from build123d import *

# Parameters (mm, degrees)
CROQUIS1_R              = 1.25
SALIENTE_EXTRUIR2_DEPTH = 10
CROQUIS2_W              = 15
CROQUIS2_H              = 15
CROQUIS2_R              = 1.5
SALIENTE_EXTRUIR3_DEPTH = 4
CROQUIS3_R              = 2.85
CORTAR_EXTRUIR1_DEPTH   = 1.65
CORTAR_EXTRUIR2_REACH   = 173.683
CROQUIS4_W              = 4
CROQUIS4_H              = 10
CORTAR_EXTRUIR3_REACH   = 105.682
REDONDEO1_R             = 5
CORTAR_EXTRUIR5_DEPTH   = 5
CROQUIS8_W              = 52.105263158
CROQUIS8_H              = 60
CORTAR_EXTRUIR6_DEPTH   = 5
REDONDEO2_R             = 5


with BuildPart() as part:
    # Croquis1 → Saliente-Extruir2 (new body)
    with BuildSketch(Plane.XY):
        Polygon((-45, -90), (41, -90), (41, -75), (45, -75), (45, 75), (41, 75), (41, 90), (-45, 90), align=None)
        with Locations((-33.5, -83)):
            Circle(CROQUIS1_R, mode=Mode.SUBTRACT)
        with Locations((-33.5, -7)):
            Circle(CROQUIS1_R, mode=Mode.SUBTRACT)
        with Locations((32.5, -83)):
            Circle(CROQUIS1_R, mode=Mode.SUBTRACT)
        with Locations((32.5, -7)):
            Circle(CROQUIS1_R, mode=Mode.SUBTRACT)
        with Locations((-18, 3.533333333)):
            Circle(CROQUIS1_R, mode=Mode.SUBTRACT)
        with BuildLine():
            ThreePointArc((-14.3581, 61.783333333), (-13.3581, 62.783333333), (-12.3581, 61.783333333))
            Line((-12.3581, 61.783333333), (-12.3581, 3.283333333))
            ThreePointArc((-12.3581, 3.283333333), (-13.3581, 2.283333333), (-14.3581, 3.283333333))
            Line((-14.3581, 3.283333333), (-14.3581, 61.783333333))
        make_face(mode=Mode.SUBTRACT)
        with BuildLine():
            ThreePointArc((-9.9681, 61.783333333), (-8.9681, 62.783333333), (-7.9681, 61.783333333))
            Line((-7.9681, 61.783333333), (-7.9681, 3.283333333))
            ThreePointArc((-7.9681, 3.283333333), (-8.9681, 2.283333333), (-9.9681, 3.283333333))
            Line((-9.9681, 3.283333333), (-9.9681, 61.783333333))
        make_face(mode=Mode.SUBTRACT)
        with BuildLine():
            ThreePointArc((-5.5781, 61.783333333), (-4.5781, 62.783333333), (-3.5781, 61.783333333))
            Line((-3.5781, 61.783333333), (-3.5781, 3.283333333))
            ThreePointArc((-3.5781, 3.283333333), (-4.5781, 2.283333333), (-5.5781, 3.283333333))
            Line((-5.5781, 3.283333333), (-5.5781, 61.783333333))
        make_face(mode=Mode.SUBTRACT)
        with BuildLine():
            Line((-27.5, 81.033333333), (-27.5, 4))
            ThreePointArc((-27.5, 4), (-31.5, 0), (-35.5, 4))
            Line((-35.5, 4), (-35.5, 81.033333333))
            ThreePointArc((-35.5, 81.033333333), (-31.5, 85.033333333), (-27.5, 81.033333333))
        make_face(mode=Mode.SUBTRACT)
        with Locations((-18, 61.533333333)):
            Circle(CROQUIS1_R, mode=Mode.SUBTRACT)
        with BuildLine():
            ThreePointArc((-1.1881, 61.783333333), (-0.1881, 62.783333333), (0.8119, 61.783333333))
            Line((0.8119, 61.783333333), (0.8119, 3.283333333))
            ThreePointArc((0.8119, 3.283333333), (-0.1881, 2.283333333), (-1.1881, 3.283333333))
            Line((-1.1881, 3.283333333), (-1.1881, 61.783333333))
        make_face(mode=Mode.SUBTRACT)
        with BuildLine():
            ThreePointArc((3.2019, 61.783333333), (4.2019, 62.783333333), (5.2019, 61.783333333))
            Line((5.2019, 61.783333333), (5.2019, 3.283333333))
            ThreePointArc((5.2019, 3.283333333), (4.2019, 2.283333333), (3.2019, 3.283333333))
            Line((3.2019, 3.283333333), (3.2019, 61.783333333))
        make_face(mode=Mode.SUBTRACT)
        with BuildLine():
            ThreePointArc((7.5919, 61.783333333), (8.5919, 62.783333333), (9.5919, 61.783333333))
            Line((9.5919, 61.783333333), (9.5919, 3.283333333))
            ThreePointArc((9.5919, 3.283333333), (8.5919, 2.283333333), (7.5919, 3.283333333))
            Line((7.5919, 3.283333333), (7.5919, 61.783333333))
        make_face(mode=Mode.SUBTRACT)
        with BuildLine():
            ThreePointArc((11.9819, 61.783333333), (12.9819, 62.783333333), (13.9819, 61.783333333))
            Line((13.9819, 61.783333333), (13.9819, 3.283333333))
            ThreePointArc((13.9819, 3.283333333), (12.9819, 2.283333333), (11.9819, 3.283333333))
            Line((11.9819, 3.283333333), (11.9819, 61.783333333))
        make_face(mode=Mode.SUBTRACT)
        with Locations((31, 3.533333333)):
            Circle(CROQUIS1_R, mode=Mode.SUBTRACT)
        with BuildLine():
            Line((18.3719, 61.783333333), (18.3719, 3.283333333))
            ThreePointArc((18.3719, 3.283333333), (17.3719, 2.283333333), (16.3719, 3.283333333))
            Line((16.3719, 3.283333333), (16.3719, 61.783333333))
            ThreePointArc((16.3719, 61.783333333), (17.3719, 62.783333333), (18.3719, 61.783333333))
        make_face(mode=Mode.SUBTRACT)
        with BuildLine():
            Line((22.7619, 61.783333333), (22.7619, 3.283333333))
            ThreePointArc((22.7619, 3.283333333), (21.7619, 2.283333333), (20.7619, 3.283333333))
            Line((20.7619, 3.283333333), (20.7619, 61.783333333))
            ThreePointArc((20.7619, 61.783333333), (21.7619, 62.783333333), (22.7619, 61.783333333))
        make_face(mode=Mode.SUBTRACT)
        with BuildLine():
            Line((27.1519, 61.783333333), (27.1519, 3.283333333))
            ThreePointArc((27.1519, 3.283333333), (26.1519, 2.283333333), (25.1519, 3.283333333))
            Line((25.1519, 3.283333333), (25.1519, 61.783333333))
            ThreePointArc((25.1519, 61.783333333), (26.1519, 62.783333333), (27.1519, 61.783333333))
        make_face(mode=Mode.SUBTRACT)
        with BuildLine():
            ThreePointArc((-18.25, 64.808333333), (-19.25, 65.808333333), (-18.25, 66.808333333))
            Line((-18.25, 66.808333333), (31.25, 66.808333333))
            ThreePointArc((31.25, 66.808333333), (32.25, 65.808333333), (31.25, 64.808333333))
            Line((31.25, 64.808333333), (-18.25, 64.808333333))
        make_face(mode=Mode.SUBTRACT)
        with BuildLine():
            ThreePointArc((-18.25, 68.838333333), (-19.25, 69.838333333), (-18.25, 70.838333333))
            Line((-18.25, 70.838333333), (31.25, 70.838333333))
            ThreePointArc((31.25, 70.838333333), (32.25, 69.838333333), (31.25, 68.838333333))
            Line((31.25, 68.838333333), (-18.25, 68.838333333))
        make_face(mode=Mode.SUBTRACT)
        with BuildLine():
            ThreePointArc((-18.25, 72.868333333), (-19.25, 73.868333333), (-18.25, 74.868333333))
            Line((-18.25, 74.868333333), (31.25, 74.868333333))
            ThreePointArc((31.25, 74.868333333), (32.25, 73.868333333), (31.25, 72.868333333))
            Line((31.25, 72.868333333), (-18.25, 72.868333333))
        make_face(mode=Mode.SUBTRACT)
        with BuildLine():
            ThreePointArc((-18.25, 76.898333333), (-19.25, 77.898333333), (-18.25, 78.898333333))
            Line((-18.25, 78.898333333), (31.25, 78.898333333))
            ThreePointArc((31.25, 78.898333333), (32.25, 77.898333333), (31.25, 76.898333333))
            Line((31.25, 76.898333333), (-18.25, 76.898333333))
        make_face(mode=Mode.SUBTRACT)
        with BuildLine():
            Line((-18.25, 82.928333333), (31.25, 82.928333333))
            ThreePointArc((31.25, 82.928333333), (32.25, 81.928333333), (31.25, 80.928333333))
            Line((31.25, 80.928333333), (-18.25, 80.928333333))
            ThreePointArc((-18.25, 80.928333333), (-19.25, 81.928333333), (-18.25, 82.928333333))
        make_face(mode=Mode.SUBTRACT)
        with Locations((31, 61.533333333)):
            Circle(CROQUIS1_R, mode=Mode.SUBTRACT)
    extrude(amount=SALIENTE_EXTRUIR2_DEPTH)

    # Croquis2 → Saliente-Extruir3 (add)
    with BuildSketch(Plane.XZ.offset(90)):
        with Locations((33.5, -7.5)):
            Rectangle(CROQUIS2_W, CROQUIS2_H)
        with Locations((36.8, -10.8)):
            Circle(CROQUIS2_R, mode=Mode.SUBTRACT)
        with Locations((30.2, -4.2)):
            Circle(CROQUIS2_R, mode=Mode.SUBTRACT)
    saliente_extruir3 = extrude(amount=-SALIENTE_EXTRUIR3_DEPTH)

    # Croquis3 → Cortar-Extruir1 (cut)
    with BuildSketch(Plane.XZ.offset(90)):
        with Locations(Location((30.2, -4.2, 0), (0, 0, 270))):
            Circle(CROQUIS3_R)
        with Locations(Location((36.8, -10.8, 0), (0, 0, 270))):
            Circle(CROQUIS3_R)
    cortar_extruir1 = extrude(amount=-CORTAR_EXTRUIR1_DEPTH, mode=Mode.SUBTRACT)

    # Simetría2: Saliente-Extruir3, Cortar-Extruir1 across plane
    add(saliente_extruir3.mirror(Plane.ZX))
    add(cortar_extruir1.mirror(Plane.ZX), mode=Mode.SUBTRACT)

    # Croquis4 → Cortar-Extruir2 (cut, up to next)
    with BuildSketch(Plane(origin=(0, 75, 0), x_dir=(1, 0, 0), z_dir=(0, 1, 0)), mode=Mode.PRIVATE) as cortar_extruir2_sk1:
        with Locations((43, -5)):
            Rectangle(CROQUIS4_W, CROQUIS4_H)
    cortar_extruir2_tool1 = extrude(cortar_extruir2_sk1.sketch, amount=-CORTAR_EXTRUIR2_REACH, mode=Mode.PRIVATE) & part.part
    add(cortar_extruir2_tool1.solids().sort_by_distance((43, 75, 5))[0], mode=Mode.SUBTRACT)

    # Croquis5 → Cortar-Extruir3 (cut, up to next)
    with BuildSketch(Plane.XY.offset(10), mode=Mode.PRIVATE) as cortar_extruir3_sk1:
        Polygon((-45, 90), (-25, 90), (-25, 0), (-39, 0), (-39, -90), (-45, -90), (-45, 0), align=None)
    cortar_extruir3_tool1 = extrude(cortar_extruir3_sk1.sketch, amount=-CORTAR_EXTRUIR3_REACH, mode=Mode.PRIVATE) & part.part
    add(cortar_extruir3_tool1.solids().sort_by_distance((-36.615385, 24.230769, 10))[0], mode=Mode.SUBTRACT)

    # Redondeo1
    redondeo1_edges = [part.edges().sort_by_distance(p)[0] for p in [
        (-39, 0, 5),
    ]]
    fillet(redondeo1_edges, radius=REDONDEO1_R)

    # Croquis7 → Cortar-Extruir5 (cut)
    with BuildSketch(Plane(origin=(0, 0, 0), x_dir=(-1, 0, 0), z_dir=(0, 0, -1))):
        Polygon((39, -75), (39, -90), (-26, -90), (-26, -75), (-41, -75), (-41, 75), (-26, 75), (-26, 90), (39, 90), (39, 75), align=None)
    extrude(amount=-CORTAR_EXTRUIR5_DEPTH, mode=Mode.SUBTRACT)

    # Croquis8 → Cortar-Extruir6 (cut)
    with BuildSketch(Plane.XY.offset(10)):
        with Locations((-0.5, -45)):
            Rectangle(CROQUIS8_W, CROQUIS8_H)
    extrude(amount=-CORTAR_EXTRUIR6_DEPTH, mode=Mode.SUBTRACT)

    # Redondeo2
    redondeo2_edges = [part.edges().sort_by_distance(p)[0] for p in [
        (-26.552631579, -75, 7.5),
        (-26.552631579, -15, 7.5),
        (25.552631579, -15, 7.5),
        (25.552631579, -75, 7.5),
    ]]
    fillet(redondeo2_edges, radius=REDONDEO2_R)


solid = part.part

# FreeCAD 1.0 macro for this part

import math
import FreeCAD as App
import Part
import Sketcher
from FreeCAD import Vector
Q = App.Units.Quantity


def edges_at(feature, points):
    """Names of the edges that pass closest to the given points."""
    edges = feature.Shape.Edges
    near = lambda p: min(range(len(edges)), key=lambda i: edges[i].distToShape(Part.Vertex(*p))[0])
    return sorted({f"Edge{near(p) + 1}" for p in points})

doc = App.newDocument("Part")
body = doc.addObject("PartDesign::Body", "Body")

# Sketch on XY plane
sketch1 = doc.addObject("Sketcher::SketchObject", "Sketch")
body.addObject(sketch1)
sketch1.AttachmentSupport = (doc.XY_Plane, [""])
sketch1.MapMode = "FlatFace"
sketch1.addGeometry(Part.LineSegment(Vector(-45, -90, 0), Vector(41, -90, 0)), False)
sketch1.addGeometry(Part.LineSegment(Vector(41, -90, 0), Vector(41, -75, 0)), False)
sketch1.addGeometry(Part.LineSegment(Vector(41, -75, 0), Vector(45, -75, 0)), False)
sketch1.addGeometry(Part.LineSegment(Vector(45, -75, 0), Vector(45, 75, 0)), False)
sketch1.addGeometry(Part.LineSegment(Vector(45, 75, 0), Vector(41, 75, 0)), False)
sketch1.addGeometry(Part.LineSegment(Vector(41, 75, 0), Vector(41, 90, 0)), False)
sketch1.addGeometry(Part.LineSegment(Vector(41, 90, 0), Vector(-45, 90, 0)), False)
sketch1.addGeometry(Part.LineSegment(Vector(-45, 90, 0), Vector(-45, -90, 0)), False)
sketch1.addGeometry(Part.Circle(Vector(-33.5, -83, 0), Vector(0, 0, 1), 1.2), False)
sketch1.addGeometry(Part.Circle(Vector(-33.5, -7, 0), Vector(0, 0, 1), 1.2), False)
sketch1.addGeometry(Part.Circle(Vector(32.5, -83, 0), Vector(0, 0, 1), 1.2), False)
sketch1.addGeometry(Part.Circle(Vector(32.5, -7, 0), Vector(0, 0, 1), 1.2), False)
sketch1.addGeometry(Part.ArcOfCircle(Part.Circle(Vector(-31.5, 81, 0), Vector(0, 0, 1), 4), math.radians(0), math.radians(180)), False)
sketch1.addGeometry(Part.LineSegment(Vector(-27.5, 81, 0), Vector(-27.5, 4, 0)), False)
sketch1.addGeometry(Part.ArcOfCircle(Part.Circle(Vector(-31.5, 4, 0), Vector(0, 0, 1), 4), math.radians(180), math.radians(360)), False)
sketch1.addGeometry(Part.LineSegment(Vector(-35.5, 4, 0), Vector(-35.5, 81, 0)), False)
sketch1.addGeometry(Part.Circle(Vector(-18, 3.5, 0), Vector(0, 0, 1), 1.2), False)
sketch1.addGeometry(Part.LineSegment(Vector(-14.4, 3.3, 0), Vector(-14.4, 61.8, 0)), False)
sketch1.addGeometry(Part.ArcOfCircle(Part.Circle(Vector(-13.4, 61.8, 0), Vector(0, 0, 1), 1), math.radians(0), math.radians(180)), False)
sketch1.addGeometry(Part.LineSegment(Vector(-12.4, 61.8, 0), Vector(-12.4, 3.3, 0)), False)
sketch1.addGeometry(Part.ArcOfCircle(Part.Circle(Vector(-13.4, 3.3, 0), Vector(0, 0, 1), 1), math.radians(180), math.radians(360)), False)
sketch1.addGeometry(Part.LineSegment(Vector(-10, 3.3, 0), Vector(-10, 61.8, 0)), False)
sketch1.addGeometry(Part.ArcOfCircle(Part.Circle(Vector(-9, 61.8, 0), Vector(0, 0, 1), 1), math.radians(0), math.radians(180)), False)
sketch1.addGeometry(Part.LineSegment(Vector(-8, 61.8, 0), Vector(-8, 3.3, 0)), False)
sketch1.addGeometry(Part.ArcOfCircle(Part.Circle(Vector(-9, 3.3, 0), Vector(0, 0, 1), 1), math.radians(180), math.radians(360)), False)
sketch1.addGeometry(Part.LineSegment(Vector(-5.6, 3.3, 0), Vector(-5.6, 61.8, 0)), False)
sketch1.addGeometry(Part.ArcOfCircle(Part.Circle(Vector(-4.6, 61.8, 0), Vector(0, 0, 1), 1), math.radians(0), math.radians(180)), False)
sketch1.addGeometry(Part.LineSegment(Vector(-3.6, 61.8, 0), Vector(-3.6, 3.3, 0)), False)
sketch1.addGeometry(Part.ArcOfCircle(Part.Circle(Vector(-4.6, 3.3, 0), Vector(0, 0, 1), 1), math.radians(180), math.radians(360)), False)
sketch1.addGeometry(Part.Circle(Vector(-18, 61.5, 0), Vector(0, 0, 1), 1.2), False)
sketch1.addGeometry(Part.LineSegment(Vector(-1.2, 3.3, 0), Vector(-1.2, 61.8, 0)), False)
sketch1.addGeometry(Part.ArcOfCircle(Part.Circle(Vector(-0.2, 61.8, 0), Vector(0, 0, 1), 1), math.radians(0), math.radians(180)), False)
sketch1.addGeometry(Part.LineSegment(Vector(0.8, 61.8, 0), Vector(0.8, 3.3, 0)), False)
sketch1.addGeometry(Part.ArcOfCircle(Part.Circle(Vector(-0.2, 3.3, 0), Vector(0, 0, 1), 1), math.radians(180), math.radians(360)), False)
sketch1.addGeometry(Part.LineSegment(Vector(3.2, 3.3, 0), Vector(3.2, 61.8, 0)), False)
sketch1.addGeometry(Part.ArcOfCircle(Part.Circle(Vector(4.2, 61.8, 0), Vector(0, 0, 1), 1), math.radians(0), math.radians(180)), False)
sketch1.addGeometry(Part.LineSegment(Vector(5.2, 61.8, 0), Vector(5.2, 3.3, 0)), False)
sketch1.addGeometry(Part.ArcOfCircle(Part.Circle(Vector(4.2, 3.3, 0), Vector(0, 0, 1), 1), math.radians(180), math.radians(360)), False)
sketch1.addGeometry(Part.LineSegment(Vector(7.6, 3.3, 0), Vector(7.6, 61.8, 0)), False)
sketch1.addGeometry(Part.ArcOfCircle(Part.Circle(Vector(8.6, 61.8, 0), Vector(0, 0, 1), 1), math.radians(0), math.radians(180)), False)
sketch1.addGeometry(Part.LineSegment(Vector(9.6, 61.8, 0), Vector(9.6, 3.3, 0)), False)
sketch1.addGeometry(Part.ArcOfCircle(Part.Circle(Vector(8.6, 3.3, 0), Vector(0, 0, 1), 1), math.radians(180), math.radians(360)), False)
sketch1.addGeometry(Part.LineSegment(Vector(12, 3.3, 0), Vector(12, 61.8, 0)), False)
sketch1.addGeometry(Part.ArcOfCircle(Part.Circle(Vector(13, 61.8, 0), Vector(0, 0, 1), 1), math.radians(0), math.radians(180)), False)
sketch1.addGeometry(Part.LineSegment(Vector(14, 61.8, 0), Vector(14, 3.3, 0)), False)
sketch1.addGeometry(Part.ArcOfCircle(Part.Circle(Vector(13, 3.3, 0), Vector(0, 0, 1), 1), math.radians(180), math.radians(360)), False)
sketch1.addGeometry(Part.Circle(Vector(31, 3.5, 0), Vector(0, 0, 1), 1.2), False)
sketch1.addGeometry(Part.ArcOfCircle(Part.Circle(Vector(17.4, 61.8, 0), Vector(0, 0, 1), 1), math.radians(0), math.radians(180)), False)
sketch1.addGeometry(Part.LineSegment(Vector(18.4, 61.8, 0), Vector(18.4, 3.3, 0)), False)
sketch1.addGeometry(Part.ArcOfCircle(Part.Circle(Vector(17.4, 3.3, 0), Vector(0, 0, 1), 1), math.radians(180), math.radians(360)), False)
sketch1.addGeometry(Part.LineSegment(Vector(16.4, 3.3, 0), Vector(16.4, 61.8, 0)), False)
sketch1.addGeometry(Part.ArcOfCircle(Part.Circle(Vector(21.8, 61.8, 0), Vector(0, 0, 1), 1), math.radians(0), math.radians(180)), False)
sketch1.addGeometry(Part.LineSegment(Vector(22.8, 61.8, 0), Vector(22.8, 3.3, 0)), False)
sketch1.addGeometry(Part.ArcOfCircle(Part.Circle(Vector(21.8, 3.3, 0), Vector(0, 0, 1), 1), math.radians(180), math.radians(360)), False)
sketch1.addGeometry(Part.LineSegment(Vector(20.8, 3.3, 0), Vector(20.8, 61.8, 0)), False)
sketch1.addGeometry(Part.ArcOfCircle(Part.Circle(Vector(26.2, 61.8, 0), Vector(0, 0, 1), 1), math.radians(0), math.radians(180)), False)
sketch1.addGeometry(Part.LineSegment(Vector(27.2, 61.8, 0), Vector(27.2, 3.3, 0)), False)
sketch1.addGeometry(Part.ArcOfCircle(Part.Circle(Vector(26.2, 3.3, 0), Vector(0, 0, 1), 1), math.radians(180), math.radians(360)), False)
sketch1.addGeometry(Part.LineSegment(Vector(25.2, 3.3, 0), Vector(25.2, 61.8, 0)), False)
sketch1.addGeometry(Part.LineSegment(Vector(31.2, 64.8, 0), Vector(-18.2, 64.8, 0)), False)
sketch1.addGeometry(Part.ArcOfCircle(Part.Circle(Vector(-18.2, 65.8, 0), Vector(0, 0, 1), 1), math.radians(90), math.radians(270)), False)
sketch1.addGeometry(Part.LineSegment(Vector(-18.2, 66.8, 0), Vector(31.2, 66.8, 0)), False)
sketch1.addGeometry(Part.ArcOfCircle(Part.Circle(Vector(31.2, 65.8, 0), Vector(0, 0, 1), 1), math.radians(-90), math.radians(90)), False)
sketch1.addGeometry(Part.LineSegment(Vector(31.2, 68.8, 0), Vector(-18.2, 68.8, 0)), False)
sketch1.addGeometry(Part.ArcOfCircle(Part.Circle(Vector(-18.2, 69.8, 0), Vector(0, 0, 1), 1), math.radians(90), math.radians(270)), False)
sketch1.addGeometry(Part.LineSegment(Vector(-18.2, 70.8, 0), Vector(31.2, 70.8, 0)), False)
sketch1.addGeometry(Part.ArcOfCircle(Part.Circle(Vector(31.2, 69.8, 0), Vector(0, 0, 1), 1), math.radians(-90), math.radians(90)), False)
sketch1.addGeometry(Part.LineSegment(Vector(31.2, 72.9, 0), Vector(-18.2, 72.9, 0)), False)
sketch1.addGeometry(Part.ArcOfCircle(Part.Circle(Vector(-18.2, 73.9, 0), Vector(0, 0, 1), 1), math.radians(90), math.radians(270)), False)
sketch1.addGeometry(Part.LineSegment(Vector(-18.2, 74.9, 0), Vector(31.2, 74.9, 0)), False)
sketch1.addGeometry(Part.ArcOfCircle(Part.Circle(Vector(31.2, 73.9, 0), Vector(0, 0, 1), 1), math.radians(-90), math.radians(90)), False)
sketch1.addGeometry(Part.LineSegment(Vector(31.2, 76.9, 0), Vector(-18.2, 76.9, 0)), False)
sketch1.addGeometry(Part.ArcOfCircle(Part.Circle(Vector(-18.2, 77.9, 0), Vector(0, 0, 1), 1), math.radians(90), math.radians(270)), False)
sketch1.addGeometry(Part.LineSegment(Vector(-18.2, 78.9, 0), Vector(31.2, 78.9, 0)), False)
sketch1.addGeometry(Part.ArcOfCircle(Part.Circle(Vector(31.2, 77.9, 0), Vector(0, 0, 1), 1), math.radians(-90), math.radians(90)), False)
sketch1.addGeometry(Part.ArcOfCircle(Part.Circle(Vector(-18.2, 81.9, 0), Vector(0, 0, 1), 1), math.radians(90), math.radians(270)), False)
sketch1.addGeometry(Part.LineSegment(Vector(-18.2, 82.9, 0), Vector(31.2, 82.9, 0)), False)
sketch1.addGeometry(Part.ArcOfCircle(Part.Circle(Vector(31.2, 81.9, 0), Vector(0, 0, 1), 1), math.radians(-90), math.radians(90)), False)
sketch1.addGeometry(Part.LineSegment(Vector(31.2, 80.9, 0), Vector(-18.2, 80.9, 0)), False)
sketch1.addGeometry(Part.Circle(Vector(31, 61.5, 0), Vector(0, 0, 1), 1.2), False)
sketch1.addConstraint(Sketcher.Constraint("Coincident", 0, 2, 1, 1))
sketch1.addConstraint(Sketcher.Constraint("Coincident", 1, 2, 2, 1))
sketch1.addConstraint(Sketcher.Constraint("Coincident", 2, 2, 3, 1))
sketch1.addConstraint(Sketcher.Constraint("Coincident", 3, 2, 4, 1))
sketch1.addConstraint(Sketcher.Constraint("Coincident", 4, 2, 5, 1))
sketch1.addConstraint(Sketcher.Constraint("Coincident", 5, 2, 6, 1))
sketch1.addConstraint(Sketcher.Constraint("Coincident", 6, 2, 7, 1))
sketch1.addConstraint(Sketcher.Constraint("Coincident", 7, 2, 0, 1))
sketch1.addConstraint(Sketcher.Constraint("Tangent", 12, 1, 13, 1))
sketch1.addConstraint(Sketcher.Constraint("Tangent", 13, 2, 14, 2))
sketch1.addConstraint(Sketcher.Constraint("Tangent", 14, 1, 15, 1))
sketch1.addConstraint(Sketcher.Constraint("Tangent", 15, 2, 12, 2))
sketch1.addConstraint(Sketcher.Constraint("Tangent", 17, 2, 18, 2))
sketch1.addConstraint(Sketcher.Constraint("Tangent", 18, 1, 19, 1))
sketch1.addConstraint(Sketcher.Constraint("Tangent", 19, 2, 20, 2))
sketch1.addConstraint(Sketcher.Constraint("Tangent", 20, 1, 17, 1))
sketch1.addConstraint(Sketcher.Constraint("Tangent", 21, 2, 22, 2))
sketch1.addConstraint(Sketcher.Constraint("Tangent", 22, 1, 23, 1))
sketch1.addConstraint(Sketcher.Constraint("Tangent", 23, 2, 24, 2))
sketch1.addConstraint(Sketcher.Constraint("Tangent", 24, 1, 21, 1))
sketch1.addConstraint(Sketcher.Constraint("Tangent", 25, 2, 26, 2))
sketch1.addConstraint(Sketcher.Constraint("Tangent", 26, 1, 27, 1))
sketch1.addConstraint(Sketcher.Constraint("Tangent", 27, 2, 28, 2))
sketch1.addConstraint(Sketcher.Constraint("Tangent", 28, 1, 25, 1))
sketch1.addConstraint(Sketcher.Constraint("Tangent", 30, 2, 31, 2))
sketch1.addConstraint(Sketcher.Constraint("Tangent", 31, 1, 32, 1))
sketch1.addConstraint(Sketcher.Constraint("Tangent", 32, 2, 33, 2))
sketch1.addConstraint(Sketcher.Constraint("Tangent", 33, 1, 30, 1))
sketch1.addConstraint(Sketcher.Constraint("Tangent", 34, 2, 35, 2))
sketch1.addConstraint(Sketcher.Constraint("Tangent", 35, 1, 36, 1))
sketch1.addConstraint(Sketcher.Constraint("Tangent", 36, 2, 37, 2))
sketch1.addConstraint(Sketcher.Constraint("Tangent", 37, 1, 34, 1))
sketch1.addConstraint(Sketcher.Constraint("Tangent", 38, 2, 39, 2))
sketch1.addConstraint(Sketcher.Constraint("Tangent", 39, 1, 40, 1))
sketch1.addConstraint(Sketcher.Constraint("Tangent", 40, 2, 41, 2))
sketch1.addConstraint(Sketcher.Constraint("Tangent", 41, 1, 38, 1))
sketch1.addConstraint(Sketcher.Constraint("Tangent", 42, 2, 43, 2))
sketch1.addConstraint(Sketcher.Constraint("Tangent", 43, 1, 44, 1))
sketch1.addConstraint(Sketcher.Constraint("Tangent", 44, 2, 45, 2))
sketch1.addConstraint(Sketcher.Constraint("Tangent", 45, 1, 42, 1))
sketch1.addConstraint(Sketcher.Constraint("Tangent", 47, 1, 48, 1))
sketch1.addConstraint(Sketcher.Constraint("Tangent", 48, 2, 49, 2))
sketch1.addConstraint(Sketcher.Constraint("Tangent", 49, 1, 50, 1))
sketch1.addConstraint(Sketcher.Constraint("Tangent", 50, 2, 47, 2))
sketch1.addConstraint(Sketcher.Constraint("Tangent", 51, 1, 52, 1))
sketch1.addConstraint(Sketcher.Constraint("Tangent", 52, 2, 53, 2))
sketch1.addConstraint(Sketcher.Constraint("Tangent", 53, 1, 54, 1))
sketch1.addConstraint(Sketcher.Constraint("Tangent", 54, 2, 51, 2))
sketch1.addConstraint(Sketcher.Constraint("Tangent", 55, 1, 56, 1))
sketch1.addConstraint(Sketcher.Constraint("Tangent", 56, 2, 57, 2))
sketch1.addConstraint(Sketcher.Constraint("Tangent", 57, 1, 58, 1))
sketch1.addConstraint(Sketcher.Constraint("Tangent", 58, 2, 55, 2))
sketch1.addConstraint(Sketcher.Constraint("Tangent", 59, 2, 60, 2))
sketch1.addConstraint(Sketcher.Constraint("Tangent", 60, 1, 61, 1))
sketch1.addConstraint(Sketcher.Constraint("Tangent", 61, 2, 62, 2))
sketch1.addConstraint(Sketcher.Constraint("Tangent", 62, 1, 59, 1))
sketch1.addConstraint(Sketcher.Constraint("Tangent", 63, 2, 64, 2))
sketch1.addConstraint(Sketcher.Constraint("Tangent", 64, 1, 65, 1))
sketch1.addConstraint(Sketcher.Constraint("Tangent", 65, 2, 66, 2))
sketch1.addConstraint(Sketcher.Constraint("Tangent", 66, 1, 63, 1))
sketch1.addConstraint(Sketcher.Constraint("Tangent", 67, 2, 68, 2))
sketch1.addConstraint(Sketcher.Constraint("Tangent", 68, 1, 69, 1))
sketch1.addConstraint(Sketcher.Constraint("Tangent", 69, 2, 70, 2))
sketch1.addConstraint(Sketcher.Constraint("Tangent", 70, 1, 67, 1))
sketch1.addConstraint(Sketcher.Constraint("Tangent", 71, 2, 72, 2))
sketch1.addConstraint(Sketcher.Constraint("Tangent", 72, 1, 73, 1))
sketch1.addConstraint(Sketcher.Constraint("Tangent", 73, 2, 74, 2))
sketch1.addConstraint(Sketcher.Constraint("Tangent", 74, 1, 71, 1))
sketch1.addConstraint(Sketcher.Constraint("Tangent", 75, 1, 76, 1))
sketch1.addConstraint(Sketcher.Constraint("Tangent", 76, 2, 77, 2))
sketch1.addConstraint(Sketcher.Constraint("Tangent", 77, 1, 78, 1))
sketch1.addConstraint(Sketcher.Constraint("Tangent", 78, 2, 75, 2))
sketch1.addConstraint(Sketcher.Constraint("Horizontal", 0))
sketch1.addConstraint(Sketcher.Constraint("Vertical", 1))
sketch1.addConstraint(Sketcher.Constraint("Horizontal", 2))
sketch1.addConstraint(Sketcher.Constraint("Vertical", 3))
sketch1.addConstraint(Sketcher.Constraint("Horizontal", 4))
sketch1.addConstraint(Sketcher.Constraint("Vertical", 5))
sketch1.addConstraint(Sketcher.Constraint("Horizontal", 6))
sketch1.addConstraint(Sketcher.Constraint("Vertical", 7))
sketch1.addConstraint(Sketcher.Constraint("Vertical", 13))
sketch1.addConstraint(Sketcher.Constraint("Vertical", 15))
sketch1.addConstraint(Sketcher.Constraint("Vertical", 17))
sketch1.addConstraint(Sketcher.Constraint("Vertical", 19))
sketch1.addConstraint(Sketcher.Constraint("Vertical", 21))
sketch1.addConstraint(Sketcher.Constraint("Vertical", 23))
sketch1.addConstraint(Sketcher.Constraint("Vertical", 25))
sketch1.addConstraint(Sketcher.Constraint("Vertical", 27))
sketch1.addConstraint(Sketcher.Constraint("Vertical", 30))
sketch1.addConstraint(Sketcher.Constraint("Vertical", 32))
sketch1.addConstraint(Sketcher.Constraint("Vertical", 34))
sketch1.addConstraint(Sketcher.Constraint("Vertical", 36))
sketch1.addConstraint(Sketcher.Constraint("Vertical", 38))
sketch1.addConstraint(Sketcher.Constraint("Vertical", 40))
sketch1.addConstraint(Sketcher.Constraint("Vertical", 42))
sketch1.addConstraint(Sketcher.Constraint("Vertical", 44))
sketch1.addConstraint(Sketcher.Constraint("Vertical", 48))
sketch1.addConstraint(Sketcher.Constraint("Vertical", 50))
sketch1.addConstraint(Sketcher.Constraint("Vertical", 52))
sketch1.addConstraint(Sketcher.Constraint("Vertical", 54))
sketch1.addConstraint(Sketcher.Constraint("Vertical", 56))
sketch1.addConstraint(Sketcher.Constraint("Vertical", 58))
sketch1.addConstraint(Sketcher.Constraint("Horizontal", 59))
sketch1.addConstraint(Sketcher.Constraint("Horizontal", 61))
sketch1.addConstraint(Sketcher.Constraint("Horizontal", 63))
sketch1.addConstraint(Sketcher.Constraint("Horizontal", 65))
sketch1.addConstraint(Sketcher.Constraint("Horizontal", 67))
sketch1.addConstraint(Sketcher.Constraint("Horizontal", 69))
sketch1.addConstraint(Sketcher.Constraint("Horizontal", 71))
sketch1.addConstraint(Sketcher.Constraint("Horizontal", 73))
sketch1.addConstraint(Sketcher.Constraint("Horizontal", 76))
sketch1.addConstraint(Sketcher.Constraint("Horizontal", 78))
sketch1.addConstraint(Sketcher.Constraint("Equal", 8, 9))
sketch1.addConstraint(Sketcher.Constraint("Equal", 9, 10))
sketch1.addConstraint(Sketcher.Constraint("Equal", 10, 11))
sketch1.addConstraint(Sketcher.Constraint("Equal", 11, 16))
sketch1.addConstraint(Sketcher.Constraint("Equal", 20, 22))
sketch1.addConstraint(Sketcher.Constraint("Equal", 24, 26))
sketch1.addConstraint(Sketcher.Constraint("Equal", 16, 29))
sketch1.addConstraint(Sketcher.Constraint("Equal", 28, 31))
sketch1.addConstraint(Sketcher.Constraint("Equal", 33, 35))
sketch1.addConstraint(Sketcher.Constraint("Equal", 37, 39))
sketch1.addConstraint(Sketcher.Constraint("Equal", 41, 43))
sketch1.addConstraint(Sketcher.Constraint("Equal", 29, 46))
sketch1.addConstraint(Sketcher.Constraint("Equal", 45, 47))
sketch1.addConstraint(Sketcher.Constraint("Equal", 49, 51))
sketch1.addConstraint(Sketcher.Constraint("Equal", 53, 55))
sketch1.addConstraint(Sketcher.Constraint("Equal", 57, 60))
sketch1.addConstraint(Sketcher.Constraint("Equal", 62, 64))
sketch1.addConstraint(Sketcher.Constraint("Equal", 66, 68))
sketch1.addConstraint(Sketcher.Constraint("Equal", 70, 72))
sketch1.addConstraint(Sketcher.Constraint("Equal", 74, 75))
sketch1.addConstraint(Sketcher.Constraint("Equal", 46, 79))
sketch1.addConstraint(Sketcher.Constraint("Symmetric", 1, 2, 4, 2, -1))
sketch1.addConstraint(Sketcher.Constraint("Horizontal", 8, 3, 10, 3))
sketch1.addConstraint(Sketcher.Constraint("Horizontal", 9, 3, 11, 3))
sketch1.addConstraint(Sketcher.Constraint("Horizontal", 18, 3, 22, 3))
sketch1.addConstraint(Sketcher.Constraint("Horizontal", 20, 3, 24, 3))
sketch1.addConstraint(Sketcher.Constraint("Horizontal", 22, 3, 26, 3))
sketch1.addConstraint(Sketcher.Constraint("Horizontal", 24, 3, 28, 3))
sketch1.addConstraint(Sketcher.Constraint("Horizontal", 26, 3, 31, 3))
sketch1.addConstraint(Sketcher.Constraint("Horizontal", 28, 3, 33, 3))
sketch1.addConstraint(Sketcher.Constraint("Horizontal", 31, 3, 35, 3))
sketch1.addConstraint(Sketcher.Constraint("Horizontal", 33, 3, 37, 3))
sketch1.addConstraint(Sketcher.Constraint("Horizontal", 35, 3, 39, 3))
sketch1.addConstraint(Sketcher.Constraint("Horizontal", 37, 3, 41, 3))
sketch1.addConstraint(Sketcher.Constraint("Horizontal", 39, 3, 43, 3))
sketch1.addConstraint(Sketcher.Constraint("Horizontal", 41, 3, 45, 3))
sketch1.addConstraint(Sketcher.Constraint("Horizontal", 16, 3, 46, 3))
sketch1.addConstraint(Sketcher.Constraint("Horizontal", 43, 3, 47, 3))
sketch1.addConstraint(Sketcher.Constraint("Horizontal", 45, 3, 49, 3))
sketch1.addConstraint(Sketcher.Constraint("Horizontal", 47, 3, 51, 3))
sketch1.addConstraint(Sketcher.Constraint("Horizontal", 49, 3, 53, 3))
sketch1.addConstraint(Sketcher.Constraint("Horizontal", 51, 3, 55, 3))
sketch1.addConstraint(Sketcher.Constraint("Horizontal", 53, 3, 57, 3))
sketch1.addConstraint(Sketcher.Constraint("Horizontal", 29, 3, 79, 3))
sketch1.addConstraint(Sketcher.Constraint("Vertical", 8, 3, 9, 3))
sketch1.addConstraint(Sketcher.Constraint("Vertical", 10, 3, 11, 3))
sketch1.addConstraint(Sketcher.Constraint("Vertical", 16, 3, 29, 3))
sketch1.addConstraint(Sketcher.Constraint("Vertical", 60, 3, 64, 3))
sketch1.addConstraint(Sketcher.Constraint("Vertical", 62, 3, 66, 3))
sketch1.addConstraint(Sketcher.Constraint("Vertical", 64, 3, 68, 3))
sketch1.addConstraint(Sketcher.Constraint("Vertical", 66, 3, 70, 3))
sketch1.addConstraint(Sketcher.Constraint("Vertical", 68, 3, 72, 3))
sketch1.addConstraint(Sketcher.Constraint("Vertical", 70, 3, 74, 3))
sketch1.addConstraint(Sketcher.Constraint("Vertical", 72, 3, 75, 3))
sketch1.addConstraint(Sketcher.Constraint("Vertical", 74, 3, 77, 3))
sketch1.addConstraint(Sketcher.Constraint("Vertical", 46, 3, 79, 3))
sketch1.addConstraint(Sketcher.Constraint("Equal", 1, 5))
sketch1.addConstraint(Sketcher.Constraint("Radius", 12, Q("4 mm")))
sketch1.addConstraint(Sketcher.Constraint("Radius", 18, Q("1 mm")))
sketch1.addConstraint(Sketcher.Constraint("Diameter", 8, Q("2.5 mm")))
sketch1.addConstraint(Sketcher.Constraint("DistanceX", 0, 1, 0, 2, Q("86 mm")))
sketch1.addConstraint(Sketcher.Constraint("DistanceX", 2, 1, 2, 2, Q("4 mm")))
sketch1.addConstraint(Sketcher.Constraint("DistanceY", 1, 1, 1, 2, Q("15 mm")))
sketch1.addConstraint(Sketcher.Constraint("DistanceY", 3, 1, 3, 2, Q("150 mm")))
sketch1.addConstraint(Sketcher.Constraint("DistanceX", 59, 2, 59, 1, Q("49.5 mm")))
sketch1.addConstraint(Sketcher.Constraint("DistanceY", 17, 1, 17, 2, Q("58.5 mm")))
sketch1.addConstraint(Sketcher.Constraint("DistanceY", 8, 3, -1, 1, Q("83 mm")))
sketch1.addConstraint(Sketcher.Constraint("DistanceY", 9, 3, -1, 1, Q("7 mm")))
sketch1.addConstraint(Sketcher.Constraint("DistanceY", -1, 1, 14, 3, Q("4 mm")))
sketch1.addConstraint(Sketcher.Constraint("DistanceX", 16, 3, -1, 1, Q("18 mm")))
sketch1.addConstraint(Sketcher.Constraint("DistanceX", -1, 1, 46, 3, Q("31 mm")))
sketch1.addConstraint(Sketcher.Constraint("DistanceX", -1, 1, 0, 2, Q("41 mm")))
sketch1.addConstraint(Sketcher.Constraint("DistanceX", 8, 3, -1, 1, Q("33.5 mm")))
sketch1.addConstraint(Sketcher.Constraint("DistanceX", -1, 1, 10, 3, Q("32.5 mm")))
sketch1.addConstraint(Sketcher.Constraint("DistanceX", 12, 3, -1, 1, Q("31.5 mm")))
sketch1.addConstraint(Sketcher.Constraint("DistanceX", 60, 3, -1, 1, Q("18.25 mm")))
sketch1.addConstraint(Sketcher.Constraint("DistanceX", 18, 3, -1, 1, Q("13.3581 mm")))
sketch1.addConstraint(Sketcher.Constraint("DistanceX", 22, 3, -1, 1, Q("8.9681 mm")))
sketch1.addConstraint(Sketcher.Constraint("DistanceX", 26, 3, -1, 1, Q("4.5781 mm")))
sketch1.addConstraint(Sketcher.Constraint("DistanceX", 31, 3, -1, 1, Q("0.1881 mm")))
sketch1.addConstraint(Sketcher.Constraint("DistanceX", -1, 1, 35, 3, Q("4.2019 mm")))
sketch1.addConstraint(Sketcher.Constraint("DistanceX", -1, 1, 39, 3, Q("8.5919 mm")))
sketch1.addConstraint(Sketcher.Constraint("DistanceX", -1, 1, 43, 3, Q("12.9819 mm")))
sketch1.addConstraint(Sketcher.Constraint("DistanceX", -1, 1, 47, 3, Q("17.3719 mm")))
sketch1.addConstraint(Sketcher.Constraint("DistanceX", -1, 1, 51, 3, Q("21.7619 mm")))
sketch1.addConstraint(Sketcher.Constraint("DistanceX", -1, 1, 55, 3, Q("26.1519 mm")))
sketch1.addConstraint(Sketcher.Constraint("DistanceY", 13, 2, 13, 1, Q("77.033333 mm")))
sketch1.addConstraint(Sketcher.Constraint("DistanceY", -1, 1, 16, 3, Q("3.533333 mm")))
sketch1.addConstraint(Sketcher.Constraint("DistanceY", -1, 1, 18, 3, Q("61.783333 mm")))
sketch1.addConstraint(Sketcher.Constraint("DistanceY", -1, 1, 29, 3, Q("61.533333 mm")))
sketch1.addConstraint(Sketcher.Constraint("DistanceY", -1, 1, 60, 3, Q("65.808333 mm")))
sketch1.addConstraint(Sketcher.Constraint("DistanceY", -1, 1, 64, 3, Q("69.838333 mm")))
sketch1.addConstraint(Sketcher.Constraint("DistanceY", -1, 1, 68, 3, Q("73.868333 mm")))
sketch1.addConstraint(Sketcher.Constraint("DistanceY", -1, 1, 72, 3, Q("77.898333 mm")))
sketch1.addConstraint(Sketcher.Constraint("DistanceY", -1, 1, 75, 3, Q("81.928333 mm")))
pad1 = doc.addObject("PartDesign::Pad", "Pad")
body.addObject(pad1)
pad1.Profile = sketch1
pad1.Length = 10

# Sketch on XZ plane
sketch2 = doc.addObject("Sketcher::SketchObject", "Sketch001")
body.addObject(sketch2)
sketch2.AttachmentSupport = (doc.XZ_Plane, [""])
sketch2.MapMode = "FlatFace"
sketch2.AttachmentOffset = App.Placement(Vector(0, 0, 90), App.Rotation())
sketch2.addGeometry(Part.LineSegment(Vector(26, 0, 0), Vector(26, -15, 0)), False)
sketch2.addGeometry(Part.LineSegment(Vector(26, -15, 0), Vector(41, -15, 0)), False)
sketch2.addGeometry(Part.LineSegment(Vector(41, -15, 0), Vector(41, 0, 0)), False)
sketch2.addGeometry(Part.LineSegment(Vector(41, 0, 0), Vector(26, 0, 0)), False)
sketch2.addGeometry(Part.Circle(Vector(36.8, -10.8, 0), Vector(0, 0, 1), 1.5), False)
sketch2.addGeometry(Part.Circle(Vector(30.2, -4.2, 0), Vector(0, 0, 1), 1.5), False)
sketch2.addConstraint(Sketcher.Constraint("Coincident", 0, 2, 1, 1))
sketch2.addConstraint(Sketcher.Constraint("Coincident", 1, 2, 2, 1))
sketch2.addConstraint(Sketcher.Constraint("Coincident", 2, 2, 3, 1))
sketch2.addConstraint(Sketcher.Constraint("Coincident", 3, 2, 0, 1))
sketch2.addConstraint(Sketcher.Constraint("Vertical", 0))
sketch2.addConstraint(Sketcher.Constraint("Horizontal", 1))
sketch2.addConstraint(Sketcher.Constraint("Vertical", 2))
sketch2.addConstraint(Sketcher.Constraint("Horizontal", 3))
sketch2.addConstraint(Sketcher.Constraint("Equal", 4, 5))
sketch2.addConstraint(Sketcher.Constraint("PointOnObject", 2, 2, -1))
sketch2.addConstraint(Sketcher.Constraint("Equal", 3, 0))
sketch2.addConstraint(Sketcher.Constraint("Diameter", 4, Q("3 mm")))
sketch2.addConstraint(Sketcher.Constraint("DistanceX", 1, 1, 1, 2, Q("15 mm")))
sketch2.addConstraint(Sketcher.Constraint("DistanceX", -1, 1, 0, 2, Q("26 mm")))
sketch2.addConstraint(Sketcher.Constraint("DistanceX", -1, 1, 4, 3, Q("36.8 mm")))
sketch2.addConstraint(Sketcher.Constraint("DistanceY", 4, 3, -1, 1, Q("10.8 mm")))
sketch2.addConstraint(Sketcher.Constraint("DistanceX", -1, 1, 5, 3, Q("30.2 mm")))
sketch2.addConstraint(Sketcher.Constraint("DistanceY", 5, 3, -1, 1, Q("4.2 mm")))
pad2 = doc.addObject("PartDesign::Pad", "Pad001")
body.addObject(pad2)
pad2.Profile = sketch2
pad2.Length = 4
pad2.Reversed = True

# Sketch on XZ plane
sketch3 = doc.addObject("Sketcher::SketchObject", "Sketch002")
body.addObject(sketch3)
sketch3.AttachmentSupport = (doc.XZ_Plane, [""])
sketch3.MapMode = "FlatFace"
sketch3.AttachmentOffset = App.Placement(Vector(0, 0, 90), App.Rotation())
sketch3.addGeometry(Part.Circle(Vector(30.2, -4.2, 0), Vector(0, 0, 1), 2.9), False)
sketch3.addGeometry(Part.Circle(Vector(36.8, -10.8, 0), Vector(0, 0, 1), 2.9), False)
sketch3.addConstraint(Sketcher.Constraint("Equal", 0, 1))
sketch3.addConstraint(Sketcher.Constraint("Diameter", 0, Q("5.7 mm")))
sketch3.addConstraint(Sketcher.Constraint("DistanceX", -1, 1, 0, 3, Q("30.2 mm")))
sketch3.addConstraint(Sketcher.Constraint("DistanceY", 0, 3, -1, 1, Q("4.2 mm")))
sketch3.addConstraint(Sketcher.Constraint("DistanceX", -1, 1, 1, 3, Q("36.8 mm")))
sketch3.addConstraint(Sketcher.Constraint("DistanceY", 1, 3, -1, 1, Q("10.8 mm")))
pocket1 = doc.addObject("PartDesign::Pocket", "Pocket")
body.addObject(pocket1)
pocket1.Profile = sketch3
pocket1.Length = 1.65
doc.recompute()

mirrored = doc.addObject("PartDesign::Mirrored", "Mirrored")
body.addObject(mirrored)
mirrored.Originals = [pad2, pocket1]
mirrored.MirrorPlane = (doc.XZ_Plane, [""])
body.Tip = mirrored

# Sketch on XZ plane
sketch4 = doc.addObject("Sketcher::SketchObject", "Sketch003")
body.addObject(sketch4)
sketch4.AttachmentSupport = (doc.XZ_Plane, [""])
sketch4.MapMode = "FlatFace"
sketch4.AttachmentOffset = App.Placement(Vector(0, 0, -75), App.Rotation())
sketch4.addGeometry(Part.LineSegment(Vector(41, 0, 0), Vector(41, 10, 0)), False)
sketch4.addGeometry(Part.LineSegment(Vector(41, 10, 0), Vector(45, 10, 0)), False)
sketch4.addGeometry(Part.LineSegment(Vector(45, 10, 0), Vector(45, 0, 0)), False)
sketch4.addGeometry(Part.LineSegment(Vector(45, 0, 0), Vector(41, 0, 0)), False)
sketch4.addConstraint(Sketcher.Constraint("Coincident", 0, 2, 1, 1))
sketch4.addConstraint(Sketcher.Constraint("Coincident", 1, 2, 2, 1))
sketch4.addConstraint(Sketcher.Constraint("Coincident", 2, 2, 3, 1))
sketch4.addConstraint(Sketcher.Constraint("Coincident", 3, 2, 0, 1))
sketch4.addConstraint(Sketcher.Constraint("Vertical", 0))
sketch4.addConstraint(Sketcher.Constraint("Horizontal", 1))
sketch4.addConstraint(Sketcher.Constraint("Vertical", 2))
sketch4.addConstraint(Sketcher.Constraint("Horizontal", 3))
sketch4.addConstraint(Sketcher.Constraint("PointOnObject", 2, 2, -1))
sketch4.addConstraint(Sketcher.Constraint("DistanceX", 1, 1, 1, 2, Q("4 mm")))
sketch4.addConstraint(Sketcher.Constraint("DistanceY", 0, 1, 0, 2, Q("10 mm")))
sketch4.addConstraint(Sketcher.Constraint("DistanceX", -1, 1, 0, 2, Q("41 mm")))
pocket2 = doc.addObject("PartDesign::Pocket", "Pocket001")
body.addObject(pocket2)
pocket2.Profile = sketch4
pocket2.Type = "UpToFirst"
pocket2.Reversed = True

# Sketch on XY plane
sketch5 = doc.addObject("Sketcher::SketchObject", "Sketch004")
body.addObject(sketch5)
sketch5.AttachmentSupport = (doc.XY_Plane, [""])
sketch5.MapMode = "FlatFace"
sketch5.AttachmentOffset = App.Placement(Vector(0, 0, 10), App.Rotation())
sketch5.addGeometry(Part.LineSegment(Vector(-25, 90, 0), Vector(-45, 90, 0)), False)
sketch5.addGeometry(Part.LineSegment(Vector(-45, 90, 0), Vector(-45, -90, 0)), False)
sketch5.addGeometry(Part.LineSegment(Vector(-45, -90, 0), Vector(-39, -90, 0)), False)
sketch5.addGeometry(Part.LineSegment(Vector(-39, -90, 0), Vector(-39, 0, 0)), False)
sketch5.addGeometry(Part.LineSegment(Vector(-39, 0, 0), Vector(-25, 0, 0)), False)
sketch5.addGeometry(Part.LineSegment(Vector(-25, 0, 0), Vector(-25, 90, 0)), False)
sketch5.addConstraint(Sketcher.Constraint("Coincident", 0, 2, 1, 1))
sketch5.addConstraint(Sketcher.Constraint("Coincident", 1, 2, 2, 1))
sketch5.addConstraint(Sketcher.Constraint("Coincident", 2, 2, 3, 1))
sketch5.addConstraint(Sketcher.Constraint("Coincident", 3, 2, 4, 1))
sketch5.addConstraint(Sketcher.Constraint("Coincident", 4, 2, 5, 1))
sketch5.addConstraint(Sketcher.Constraint("Coincident", 5, 2, 0, 1))
sketch5.addConstraint(Sketcher.Constraint("Horizontal", 0))
sketch5.addConstraint(Sketcher.Constraint("Vertical", 1))
sketch5.addConstraint(Sketcher.Constraint("Horizontal", 2))
sketch5.addConstraint(Sketcher.Constraint("Vertical", 3))
sketch5.addConstraint(Sketcher.Constraint("Horizontal", 4))
sketch5.addConstraint(Sketcher.Constraint("Vertical", 5))
sketch5.addConstraint(Sketcher.Constraint("PointOnObject", 3, 2, -1))
sketch5.addConstraint(Sketcher.Constraint("Equal", 3, 5))
sketch5.addConstraint(Sketcher.Constraint("DistanceX", 0, 2, 0, 1, Q("20 mm")))
sketch5.addConstraint(Sketcher.Constraint("DistanceX", 2, 1, 2, 2, Q("6 mm")))
sketch5.addConstraint(Sketcher.Constraint("DistanceY", 1, 2, 1, 1, Q("180 mm")))
sketch5.addConstraint(Sketcher.Constraint("DistanceX", 0, 2, -1, 1, Q("45 mm")))
pocket3 = doc.addObject("PartDesign::Pocket", "Pocket002")
body.addObject(pocket3)
pocket3.Profile = sketch5
pocket3.Type = "UpToFirst"
doc.recompute()

fillet = doc.addObject("PartDesign::Fillet", "Fillet")
body.addObject(fillet)
fillet.Base = (pocket3, edges_at(pocket3, [(-39, 0, 5)]))
fillet.Radius = 5

# Sketch on XY plane
sketch6 = doc.addObject("Sketcher::SketchObject", "Sketch005")
body.addObject(sketch6)
sketch6.AttachmentSupport = (doc.XY_Plane, [""])
sketch6.MapMode = "FlatFace"
sketch6.addGeometry(Part.LineSegment(Vector(-39, -90, 0), Vector(-39, 90, 0)), False)
sketch6.addGeometry(Part.LineSegment(Vector(-39, 90, 0), Vector(26, 90, 0)), False)
sketch6.addGeometry(Part.LineSegment(Vector(26, 90, 0), Vector(26, 75, 0)), False)
sketch6.addGeometry(Part.LineSegment(Vector(26, 75, 0), Vector(41, 75, 0)), False)
sketch6.addGeometry(Part.LineSegment(Vector(41, 75, 0), Vector(41, -75, 0)), False)
sketch6.addGeometry(Part.LineSegment(Vector(41, -75, 0), Vector(26, -75, 0)), False)
sketch6.addGeometry(Part.LineSegment(Vector(26, -75, 0), Vector(26, -90, 0)), False)
sketch6.addGeometry(Part.LineSegment(Vector(26, -90, 0), Vector(-39, -90, 0)), False)
sketch6.addConstraint(Sketcher.Constraint("Coincident", 0, 2, 1, 1))
sketch6.addConstraint(Sketcher.Constraint("Coincident", 1, 2, 2, 1))
sketch6.addConstraint(Sketcher.Constraint("Coincident", 2, 2, 3, 1))
sketch6.addConstraint(Sketcher.Constraint("Coincident", 3, 2, 4, 1))
sketch6.addConstraint(Sketcher.Constraint("Coincident", 4, 2, 5, 1))
sketch6.addConstraint(Sketcher.Constraint("Coincident", 5, 2, 6, 1))
sketch6.addConstraint(Sketcher.Constraint("Coincident", 6, 2, 7, 1))
sketch6.addConstraint(Sketcher.Constraint("Coincident", 7, 2, 0, 1))
sketch6.addConstraint(Sketcher.Constraint("Vertical", 0))
sketch6.addConstraint(Sketcher.Constraint("Horizontal", 1))
sketch6.addConstraint(Sketcher.Constraint("Vertical", 2))
sketch6.addConstraint(Sketcher.Constraint("Horizontal", 3))
sketch6.addConstraint(Sketcher.Constraint("Vertical", 4))
sketch6.addConstraint(Sketcher.Constraint("Horizontal", 5))
sketch6.addConstraint(Sketcher.Constraint("Vertical", 6))
sketch6.addConstraint(Sketcher.Constraint("Horizontal", 7))
sketch6.addConstraint(Sketcher.Constraint("Symmetric", 2, 2, 5, 2, -1))
sketch6.addConstraint(Sketcher.Constraint("Equal", 5, 2))
sketch6.addConstraint(Sketcher.Constraint("Equal", 2, 6))
sketch6.addConstraint(Sketcher.Constraint("DistanceX", 1, 1, 1, 2, Q("65 mm")))
sketch6.addConstraint(Sketcher.Constraint("DistanceX", 3, 1, 3, 2, Q("15 mm")))
sketch6.addConstraint(Sketcher.Constraint("DistanceY", 0, 1, 0, 2, Q("180 mm")))
sketch6.addConstraint(Sketcher.Constraint("DistanceX", 0, 2, -1, 1, Q("39 mm")))
pocket4 = doc.addObject("PartDesign::Pocket", "Pocket003")
body.addObject(pocket4)
pocket4.Profile = sketch6
pocket4.Length = 5
pocket4.Reversed = True

# Sketch on XY plane
sketch7 = doc.addObject("Sketcher::SketchObject", "Sketch006")
body.addObject(sketch7)
sketch7.AttachmentSupport = (doc.XY_Plane, [""])
sketch7.MapMode = "FlatFace"
sketch7.AttachmentOffset = App.Placement(Vector(0, 0, 10), App.Rotation())
sketch7.addGeometry(Part.LineSegment(Vector(-27, -15, 0), Vector(-27, -75, 0)), False)
sketch7.addGeometry(Part.LineSegment(Vector(-27, -75, 0), Vector(26, -75, 0)), False)
sketch7.addGeometry(Part.LineSegment(Vector(26, -75, 0), Vector(26, -15, 0)), False)
sketch7.addGeometry(Part.LineSegment(Vector(26, -15, 0), Vector(-27, -15, 0)), False)
sketch7.addConstraint(Sketcher.Constraint("Coincident", 0, 2, 1, 1))
sketch7.addConstraint(Sketcher.Constraint("Coincident", 1, 2, 2, 1))
sketch7.addConstraint(Sketcher.Constraint("Coincident", 2, 2, 3, 1))
sketch7.addConstraint(Sketcher.Constraint("Coincident", 3, 2, 0, 1))
sketch7.addConstraint(Sketcher.Constraint("Vertical", 0))
sketch7.addConstraint(Sketcher.Constraint("Horizontal", 1))
sketch7.addConstraint(Sketcher.Constraint("Vertical", 2))
sketch7.addConstraint(Sketcher.Constraint("Horizontal", 3))
sketch7.addConstraint(Sketcher.Constraint("DistanceY", 0, 2, 0, 1, Q("60 mm")))
sketch7.addConstraint(Sketcher.Constraint("DistanceY", 0, 2, -1, 1, Q("75 mm")))
sketch7.addConstraint(Sketcher.Constraint("DistanceX", 1, 1, 1, 2, Q("52.105263 mm")))
sketch7.addConstraint(Sketcher.Constraint("DistanceX", 0, 2, -1, 1, Q("26.552632 mm")))
pocket5 = doc.addObject("PartDesign::Pocket", "Pocket004")
body.addObject(pocket5)
pocket5.Profile = sketch7
pocket5.Length = 5
doc.recompute()

fillet2 = doc.addObject("PartDesign::Fillet", "Fillet001")
body.addObject(fillet2)
fillet2.Base = (pocket5, edges_at(pocket5, [
    (-26.553, -75, 7.5),
    (-26.553, -15, 7.5),
    (25.553, -15, 7.5),
    (25.553, -75, 7.5),
]))
fillet2.Radius = 5

doc.recompute()
